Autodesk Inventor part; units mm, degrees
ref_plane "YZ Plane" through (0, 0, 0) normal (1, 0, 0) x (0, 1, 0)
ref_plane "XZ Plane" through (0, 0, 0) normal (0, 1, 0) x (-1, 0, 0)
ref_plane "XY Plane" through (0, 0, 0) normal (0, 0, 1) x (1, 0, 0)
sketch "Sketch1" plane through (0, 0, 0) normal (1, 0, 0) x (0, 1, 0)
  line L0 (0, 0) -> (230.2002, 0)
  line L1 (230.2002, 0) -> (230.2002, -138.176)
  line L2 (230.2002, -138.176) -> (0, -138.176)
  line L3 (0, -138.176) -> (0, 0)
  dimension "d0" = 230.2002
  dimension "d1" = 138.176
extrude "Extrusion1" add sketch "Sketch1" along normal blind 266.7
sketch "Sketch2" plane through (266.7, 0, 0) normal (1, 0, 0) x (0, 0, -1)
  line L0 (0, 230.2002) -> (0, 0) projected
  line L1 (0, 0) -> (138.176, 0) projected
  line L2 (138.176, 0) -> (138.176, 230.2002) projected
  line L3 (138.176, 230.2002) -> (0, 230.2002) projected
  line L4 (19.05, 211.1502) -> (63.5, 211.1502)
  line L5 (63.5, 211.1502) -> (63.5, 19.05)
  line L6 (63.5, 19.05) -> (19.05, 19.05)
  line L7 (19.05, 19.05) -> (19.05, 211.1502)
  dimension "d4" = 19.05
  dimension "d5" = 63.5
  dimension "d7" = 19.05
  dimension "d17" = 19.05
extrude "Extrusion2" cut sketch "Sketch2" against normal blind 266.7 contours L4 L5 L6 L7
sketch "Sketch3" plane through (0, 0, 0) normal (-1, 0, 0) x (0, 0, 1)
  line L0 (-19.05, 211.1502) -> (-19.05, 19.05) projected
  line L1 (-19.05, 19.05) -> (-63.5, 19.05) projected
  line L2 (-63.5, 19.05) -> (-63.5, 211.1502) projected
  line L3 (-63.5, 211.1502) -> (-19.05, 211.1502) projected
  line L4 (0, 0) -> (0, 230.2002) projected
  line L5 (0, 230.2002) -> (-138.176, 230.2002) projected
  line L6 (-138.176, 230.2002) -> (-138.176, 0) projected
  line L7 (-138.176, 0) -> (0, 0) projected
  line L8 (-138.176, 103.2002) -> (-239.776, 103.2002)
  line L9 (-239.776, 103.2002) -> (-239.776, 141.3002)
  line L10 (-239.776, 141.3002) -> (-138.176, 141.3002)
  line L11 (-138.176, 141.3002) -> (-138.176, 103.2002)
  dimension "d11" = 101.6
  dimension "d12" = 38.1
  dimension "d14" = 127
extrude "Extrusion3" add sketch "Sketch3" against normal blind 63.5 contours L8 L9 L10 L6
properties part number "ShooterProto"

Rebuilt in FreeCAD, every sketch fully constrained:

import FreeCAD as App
import Part
import Sketcher
from FreeCAD import Vector
Q = App.Units.Quantity


def add_polygon(sketch, points):
    """Adds a closed chain of lines whose ends are joined by coincident constraints."""
    first, n = sketch.GeometryCount, len(points)
    for a, b in zip(points, points[1:] + points[:1]):
        sketch.addGeometry(Part.LineSegment(App.Vector(*a, 0), App.Vector(*b, 0)), False)
    for i in range(n):
        sketch.addConstraint(Sketcher.Constraint("Coincident", first + i, 2, first + (i + 1) % n, 1))

doc = App.newDocument("Part")
body = doc.addObject("PartDesign::Body", "Body")

# Sketch on YZ plane
sketch1 = body.newObject("Sketcher::SketchObject", "Sketch")
sketch1.AttachmentSupport = (doc.getObject("YZ_Plane"), [""])
sketch1.MapMode = "FlatFace"
add_polygon(sketch1, [(230, 0), (0, 0), (0, -138), (230, -138)])  # lines 0-3
sketch1.addConstraint([
    Sketcher.Constraint("Horizontal", 0),
    Sketcher.Constraint("Vertical", 1),
    Sketcher.Constraint("Horizontal", 2),
    Sketcher.Constraint("Vertical", 3),
    Sketcher.Constraint("Coincident", 0, 2, -1, 1),
    Sketcher.Constraint("DistanceY", 1, 2, 1, 1, Q("5.44 in")),
    Sketcher.Constraint("DistanceX", 0, 2, 0, 1, Q("9.063 in")),
])
pad1 = body.newObject("PartDesign::Pad", "Pad")
pad1.Profile = sketch1
pad1.Length = Q("10.5 in")

# Sketch on YZ plane
sketch2 = body.newObject("Sketcher::SketchObject", "Sketch001")
sketch2.AttachmentSupport = (doc.getObject("YZ_Plane"), [""])
sketch2.MapMode = "FlatFace"
sketch2.AttachmentOffset = App.Placement(Vector(0, 0, 10.5 * 25.4), App.Rotation())
add_polygon(sketch2, [(211, -64), (211, -19), (19, -19), (19, -64)])  # lines 0-3
sketch2.addConstraint([
    Sketcher.Constraint("Vertical", 0),
    Sketcher.Constraint("Horizontal", 1),
    Sketcher.Constraint("Vertical", 2),
    Sketcher.Constraint("Horizontal", 3),
    Sketcher.Constraint("DistanceY", 2, 2, -1, 1, Q("2.5 in")),
    Sketcher.Constraint("DistanceY", 0, 2, -1, 1, Q("0.75 in")),
    Sketcher.Constraint("DistanceX", -1, 1, 1, 2, Q("0.75 in")),
    Sketcher.Constraint("DistanceX", 1, 2, 1, 1, Q("7.563 in")),
])
pocket1 = body.newObject("PartDesign::Pocket", "Pocket")
pocket1.Profile = sketch2
pocket1.Length = Q("10.5 in")

# Sketch on YZ plane
sketch3 = body.newObject("Sketcher::SketchObject", "Sketch002")
sketch3.AttachmentSupport = (doc.getObject("YZ_Plane"), [""])
sketch3.MapMode = "FlatFace"
add_polygon(sketch3, [(103, -240), (103, -138), (141, -138), (141, -240)])  # lines 0-3
sketch3.addConstraint([
    Sketcher.Constraint("Vertical", 0),
    Sketcher.Constraint("Horizontal", 1),
    Sketcher.Constraint("Vertical", 2),
    Sketcher.Constraint("Horizontal", 3),
    Sketcher.Constraint("DistanceY", 0, 1, 0, 2, Q("4 in")),
    Sketcher.Constraint("DistanceX", 1, 1, 1, 2, Q("1.5 in")),
    Sketcher.Constraint("DistanceY", 0, 2, -1, 1, Q("5.44 in")),
    Sketcher.Constraint("DistanceX", -1, 1, 0, 2, Q("4.063 in")),
])
pad2 = body.newObject("PartDesign::Pad", "Pad001")
pad2.Profile = sketch3
pad2.Length = Q("2.5 in")

doc.recompute()
